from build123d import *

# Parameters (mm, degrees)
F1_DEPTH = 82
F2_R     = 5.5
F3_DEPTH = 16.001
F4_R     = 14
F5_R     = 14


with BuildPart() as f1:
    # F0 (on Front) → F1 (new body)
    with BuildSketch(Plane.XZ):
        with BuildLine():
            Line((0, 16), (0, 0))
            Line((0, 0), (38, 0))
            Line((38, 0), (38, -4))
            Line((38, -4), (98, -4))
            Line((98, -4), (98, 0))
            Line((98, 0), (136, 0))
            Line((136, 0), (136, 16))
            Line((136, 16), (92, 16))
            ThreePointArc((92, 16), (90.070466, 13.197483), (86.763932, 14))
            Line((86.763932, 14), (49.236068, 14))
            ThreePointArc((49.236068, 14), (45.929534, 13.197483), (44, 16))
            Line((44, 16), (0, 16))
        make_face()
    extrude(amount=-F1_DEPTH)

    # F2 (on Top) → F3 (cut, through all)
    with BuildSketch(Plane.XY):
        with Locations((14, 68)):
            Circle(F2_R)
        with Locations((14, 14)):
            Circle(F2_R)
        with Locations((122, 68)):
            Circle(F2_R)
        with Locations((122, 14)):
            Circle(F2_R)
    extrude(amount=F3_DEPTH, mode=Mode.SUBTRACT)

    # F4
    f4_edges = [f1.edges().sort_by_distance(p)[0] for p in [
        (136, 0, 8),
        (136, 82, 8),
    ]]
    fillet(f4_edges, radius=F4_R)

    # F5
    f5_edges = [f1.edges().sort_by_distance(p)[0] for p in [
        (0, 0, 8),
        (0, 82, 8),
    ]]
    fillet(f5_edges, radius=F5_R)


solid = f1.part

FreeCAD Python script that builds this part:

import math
import FreeCAD as App
import Part
import Sketcher

V = App.Vector
Q = App.Units.Quantity


def edges_at(feature, points):
    """Names of the edges that pass closest to the given points."""
    edges = feature.Shape.Edges
    near = lambda p: min(range(len(edges)), key=lambda i: edges[i].distToShape(Part.Vertex(*p))[0])
    return sorted({f"Edge{near(p) + 1}" for p in points})

doc = App.newDocument("Part")
body = doc.addObject("PartDesign::Body", "Body")

# Sketch on XZ plane
sketch1 = body.newObject("Sketcher::SketchObject", "Sketch")
sketch1.AttachmentSupport = (doc.getObject("XZ_Plane"), [""])
sketch1.MapMode = "FlatFace"
sketch1.addGeometry([
    Part.LineSegment(V(0, 16, 0), V(0, 0, 0)),  # 0
    Part.LineSegment(V(0, 0, 0), V(38, 0, 0)),  # 1
    Part.LineSegment(V(38, 0, 0), V(38, -4, 0)),  # 2
    Part.LineSegment(V(38, -4, 0), V(98, -4, 0)),  # 3
    Part.LineSegment(V(98, -4, 0), V(98, 0, 0)),  # 4
    Part.LineSegment(V(98, 0, 0), V(136, 0, 0)),  # 5
    Part.LineSegment(V(136, 0, 0), V(136, 16, 0)),  # 6
    Part.LineSegment(V(136, 16, 0), V(92, 16, 0)),  # 7
    Part.ArcOfCircle(Part.Circle(V(89, 16, 0), V(0, 0, 1), 3), math.radians(-138), math.radians(0)),  # 8
    Part.LineSegment(V(86.8, 14, 0), V(49.2, 14, 0)),  # 9
    Part.ArcOfCircle(Part.Circle(V(47, 16, 0), V(0, 0, 1), 3), math.radians(-180), math.radians(-42)),  # 10
    Part.LineSegment(V(44, 16, 0), V(0, 16, 0)),  # 11
], False)
sketch1.addConstraint([
    Sketcher.Constraint("Coincident", 0, 2, 1, 1),
    Sketcher.Constraint("Coincident", 1, 2, 2, 1),
    Sketcher.Constraint("Coincident", 2, 2, 3, 1),
    Sketcher.Constraint("Coincident", 3, 2, 4, 1),
    Sketcher.Constraint("Coincident", 4, 2, 5, 1),
    Sketcher.Constraint("Coincident", 5, 2, 6, 1),
    Sketcher.Constraint("Coincident", 6, 2, 7, 1),
    Sketcher.Constraint("Coincident", 7, 2, 8, 2),
    Sketcher.Constraint("Coincident", 8, 1, 9, 1),
    Sketcher.Constraint("Coincident", 9, 2, 10, 2),
    Sketcher.Constraint("Coincident", 10, 1, 11, 1),
    Sketcher.Constraint("Coincident", 11, 2, 0, 1),
    Sketcher.Constraint("Vertical", 0),
    Sketcher.Constraint("Horizontal", 1),
    Sketcher.Constraint("Vertical", 2),
    Sketcher.Constraint("Horizontal", 3),
    Sketcher.Constraint("Vertical", 4),
    Sketcher.Constraint("Horizontal", 5),
    Sketcher.Constraint("Vertical", 6),
    Sketcher.Constraint("Horizontal", 7),
    Sketcher.Constraint("Horizontal", 9),
    Sketcher.Constraint("Horizontal", 11),
    Sketcher.Constraint("Coincident", 0, 2, -1, 1),
    Sketcher.Constraint("Equal", 8, 10),
    Sketcher.Constraint("PointOnObject", 4, 2, -1),
    Sketcher.Constraint("Horizontal", 8, 3, 10, 3),
    Sketcher.Constraint("Horizontal", 10, 3, 6, 2),
    Sketcher.Constraint("Horizontal", 7, 2, 10, 1),
    Sketcher.Constraint("Equal", 1, 5),
    Sketcher.Constraint("Equal", 7, 11),
    Sketcher.Constraint("Radius", 8, Q("3 mm")),
    Sketcher.Constraint("DistanceX", 1, 1, 1, 2, Q("38 mm")),
    Sketcher.Constraint("DistanceX", 3, 1, 3, 2, Q("60 mm")),
    Sketcher.Constraint("DistanceX", 7, 2, 7, 1, Q("44 mm")),
    Sketcher.Constraint("DistanceY", 0, 2, 0, 1, Q("16 mm")),
    Sketcher.Constraint("DistanceY", 2, 2, 2, 1, Q("4 mm")),
    Sketcher.Constraint("DistanceY", -1, 1, 8, 1, Q("14 mm")),
])
pad1 = body.newObject("PartDesign::Pad", "Pad")
pad1.Profile = sketch1
pad1.Length = 82
pad1.Reversed = True

# Sketch on XY plane
sketch2 = body.newObject("Sketcher::SketchObject", "Sketch001")
sketch2.AttachmentSupport = (doc.getObject("XY_Plane"), [""])
sketch2.MapMode = "FlatFace"
sketch2.addGeometry([
    Part.Circle(V(14, 68, 0), V(0, 0, 1), 6),
    Part.Circle(V(14, 14, 0), V(0, 0, 1), 6),
    Part.Circle(V(122, 68, 0), V(0, 0, 1), 6),
    Part.Circle(V(122, 14, 0), V(0, 0, 1), 6),
], False)
sketch2.addConstraint([
    Sketcher.Constraint("Equal", 0, 1),
    Sketcher.Constraint("Equal", 1, 2),
    Sketcher.Constraint("Equal", 2, 3),
    Sketcher.Constraint("Horizontal", 0, 3, 2, 3),
    Sketcher.Constraint("Horizontal", 1, 3, 3, 3),
    Sketcher.Constraint("Vertical", 0, 3, 1, 3),
    Sketcher.Constraint("Vertical", 2, 3, 3, 3),
    Sketcher.Constraint("Diameter", 0, Q("11 mm")),
    Sketcher.Constraint("DistanceX", -1, 1, 0, 3, Q("14 mm")),
    Sketcher.Constraint("DistanceY", -1, 1, 0, 3, Q("68 mm")),
    Sketcher.Constraint("DistanceY", -1, 1, 1, 3, Q("14 mm")),
    Sketcher.Constraint("DistanceX", -1, 1, 2, 3, Q("122 mm")),
])
pocket1 = body.newObject("PartDesign::Pocket", "Pocket")
pocket1.Profile = sketch2
pocket1.Type = "ThroughAll"
pocket1.Reversed = True
doc.recompute()

fillet = body.newObject("PartDesign::Fillet", "Fillet")
fillet.Base = (pocket1, edges_at(pocket1, [(136, 0, 8), (136, 82, 8)]))
fillet.Radius = 14
doc.recompute()

fillet2 = body.newObject("PartDesign::Fillet", "Fillet001")
fillet2.Base = (fillet, edges_at(fillet, [(0, 0, 8), (0, 82, 8)]))
fillet2.Radius = 14

doc.recompute()
